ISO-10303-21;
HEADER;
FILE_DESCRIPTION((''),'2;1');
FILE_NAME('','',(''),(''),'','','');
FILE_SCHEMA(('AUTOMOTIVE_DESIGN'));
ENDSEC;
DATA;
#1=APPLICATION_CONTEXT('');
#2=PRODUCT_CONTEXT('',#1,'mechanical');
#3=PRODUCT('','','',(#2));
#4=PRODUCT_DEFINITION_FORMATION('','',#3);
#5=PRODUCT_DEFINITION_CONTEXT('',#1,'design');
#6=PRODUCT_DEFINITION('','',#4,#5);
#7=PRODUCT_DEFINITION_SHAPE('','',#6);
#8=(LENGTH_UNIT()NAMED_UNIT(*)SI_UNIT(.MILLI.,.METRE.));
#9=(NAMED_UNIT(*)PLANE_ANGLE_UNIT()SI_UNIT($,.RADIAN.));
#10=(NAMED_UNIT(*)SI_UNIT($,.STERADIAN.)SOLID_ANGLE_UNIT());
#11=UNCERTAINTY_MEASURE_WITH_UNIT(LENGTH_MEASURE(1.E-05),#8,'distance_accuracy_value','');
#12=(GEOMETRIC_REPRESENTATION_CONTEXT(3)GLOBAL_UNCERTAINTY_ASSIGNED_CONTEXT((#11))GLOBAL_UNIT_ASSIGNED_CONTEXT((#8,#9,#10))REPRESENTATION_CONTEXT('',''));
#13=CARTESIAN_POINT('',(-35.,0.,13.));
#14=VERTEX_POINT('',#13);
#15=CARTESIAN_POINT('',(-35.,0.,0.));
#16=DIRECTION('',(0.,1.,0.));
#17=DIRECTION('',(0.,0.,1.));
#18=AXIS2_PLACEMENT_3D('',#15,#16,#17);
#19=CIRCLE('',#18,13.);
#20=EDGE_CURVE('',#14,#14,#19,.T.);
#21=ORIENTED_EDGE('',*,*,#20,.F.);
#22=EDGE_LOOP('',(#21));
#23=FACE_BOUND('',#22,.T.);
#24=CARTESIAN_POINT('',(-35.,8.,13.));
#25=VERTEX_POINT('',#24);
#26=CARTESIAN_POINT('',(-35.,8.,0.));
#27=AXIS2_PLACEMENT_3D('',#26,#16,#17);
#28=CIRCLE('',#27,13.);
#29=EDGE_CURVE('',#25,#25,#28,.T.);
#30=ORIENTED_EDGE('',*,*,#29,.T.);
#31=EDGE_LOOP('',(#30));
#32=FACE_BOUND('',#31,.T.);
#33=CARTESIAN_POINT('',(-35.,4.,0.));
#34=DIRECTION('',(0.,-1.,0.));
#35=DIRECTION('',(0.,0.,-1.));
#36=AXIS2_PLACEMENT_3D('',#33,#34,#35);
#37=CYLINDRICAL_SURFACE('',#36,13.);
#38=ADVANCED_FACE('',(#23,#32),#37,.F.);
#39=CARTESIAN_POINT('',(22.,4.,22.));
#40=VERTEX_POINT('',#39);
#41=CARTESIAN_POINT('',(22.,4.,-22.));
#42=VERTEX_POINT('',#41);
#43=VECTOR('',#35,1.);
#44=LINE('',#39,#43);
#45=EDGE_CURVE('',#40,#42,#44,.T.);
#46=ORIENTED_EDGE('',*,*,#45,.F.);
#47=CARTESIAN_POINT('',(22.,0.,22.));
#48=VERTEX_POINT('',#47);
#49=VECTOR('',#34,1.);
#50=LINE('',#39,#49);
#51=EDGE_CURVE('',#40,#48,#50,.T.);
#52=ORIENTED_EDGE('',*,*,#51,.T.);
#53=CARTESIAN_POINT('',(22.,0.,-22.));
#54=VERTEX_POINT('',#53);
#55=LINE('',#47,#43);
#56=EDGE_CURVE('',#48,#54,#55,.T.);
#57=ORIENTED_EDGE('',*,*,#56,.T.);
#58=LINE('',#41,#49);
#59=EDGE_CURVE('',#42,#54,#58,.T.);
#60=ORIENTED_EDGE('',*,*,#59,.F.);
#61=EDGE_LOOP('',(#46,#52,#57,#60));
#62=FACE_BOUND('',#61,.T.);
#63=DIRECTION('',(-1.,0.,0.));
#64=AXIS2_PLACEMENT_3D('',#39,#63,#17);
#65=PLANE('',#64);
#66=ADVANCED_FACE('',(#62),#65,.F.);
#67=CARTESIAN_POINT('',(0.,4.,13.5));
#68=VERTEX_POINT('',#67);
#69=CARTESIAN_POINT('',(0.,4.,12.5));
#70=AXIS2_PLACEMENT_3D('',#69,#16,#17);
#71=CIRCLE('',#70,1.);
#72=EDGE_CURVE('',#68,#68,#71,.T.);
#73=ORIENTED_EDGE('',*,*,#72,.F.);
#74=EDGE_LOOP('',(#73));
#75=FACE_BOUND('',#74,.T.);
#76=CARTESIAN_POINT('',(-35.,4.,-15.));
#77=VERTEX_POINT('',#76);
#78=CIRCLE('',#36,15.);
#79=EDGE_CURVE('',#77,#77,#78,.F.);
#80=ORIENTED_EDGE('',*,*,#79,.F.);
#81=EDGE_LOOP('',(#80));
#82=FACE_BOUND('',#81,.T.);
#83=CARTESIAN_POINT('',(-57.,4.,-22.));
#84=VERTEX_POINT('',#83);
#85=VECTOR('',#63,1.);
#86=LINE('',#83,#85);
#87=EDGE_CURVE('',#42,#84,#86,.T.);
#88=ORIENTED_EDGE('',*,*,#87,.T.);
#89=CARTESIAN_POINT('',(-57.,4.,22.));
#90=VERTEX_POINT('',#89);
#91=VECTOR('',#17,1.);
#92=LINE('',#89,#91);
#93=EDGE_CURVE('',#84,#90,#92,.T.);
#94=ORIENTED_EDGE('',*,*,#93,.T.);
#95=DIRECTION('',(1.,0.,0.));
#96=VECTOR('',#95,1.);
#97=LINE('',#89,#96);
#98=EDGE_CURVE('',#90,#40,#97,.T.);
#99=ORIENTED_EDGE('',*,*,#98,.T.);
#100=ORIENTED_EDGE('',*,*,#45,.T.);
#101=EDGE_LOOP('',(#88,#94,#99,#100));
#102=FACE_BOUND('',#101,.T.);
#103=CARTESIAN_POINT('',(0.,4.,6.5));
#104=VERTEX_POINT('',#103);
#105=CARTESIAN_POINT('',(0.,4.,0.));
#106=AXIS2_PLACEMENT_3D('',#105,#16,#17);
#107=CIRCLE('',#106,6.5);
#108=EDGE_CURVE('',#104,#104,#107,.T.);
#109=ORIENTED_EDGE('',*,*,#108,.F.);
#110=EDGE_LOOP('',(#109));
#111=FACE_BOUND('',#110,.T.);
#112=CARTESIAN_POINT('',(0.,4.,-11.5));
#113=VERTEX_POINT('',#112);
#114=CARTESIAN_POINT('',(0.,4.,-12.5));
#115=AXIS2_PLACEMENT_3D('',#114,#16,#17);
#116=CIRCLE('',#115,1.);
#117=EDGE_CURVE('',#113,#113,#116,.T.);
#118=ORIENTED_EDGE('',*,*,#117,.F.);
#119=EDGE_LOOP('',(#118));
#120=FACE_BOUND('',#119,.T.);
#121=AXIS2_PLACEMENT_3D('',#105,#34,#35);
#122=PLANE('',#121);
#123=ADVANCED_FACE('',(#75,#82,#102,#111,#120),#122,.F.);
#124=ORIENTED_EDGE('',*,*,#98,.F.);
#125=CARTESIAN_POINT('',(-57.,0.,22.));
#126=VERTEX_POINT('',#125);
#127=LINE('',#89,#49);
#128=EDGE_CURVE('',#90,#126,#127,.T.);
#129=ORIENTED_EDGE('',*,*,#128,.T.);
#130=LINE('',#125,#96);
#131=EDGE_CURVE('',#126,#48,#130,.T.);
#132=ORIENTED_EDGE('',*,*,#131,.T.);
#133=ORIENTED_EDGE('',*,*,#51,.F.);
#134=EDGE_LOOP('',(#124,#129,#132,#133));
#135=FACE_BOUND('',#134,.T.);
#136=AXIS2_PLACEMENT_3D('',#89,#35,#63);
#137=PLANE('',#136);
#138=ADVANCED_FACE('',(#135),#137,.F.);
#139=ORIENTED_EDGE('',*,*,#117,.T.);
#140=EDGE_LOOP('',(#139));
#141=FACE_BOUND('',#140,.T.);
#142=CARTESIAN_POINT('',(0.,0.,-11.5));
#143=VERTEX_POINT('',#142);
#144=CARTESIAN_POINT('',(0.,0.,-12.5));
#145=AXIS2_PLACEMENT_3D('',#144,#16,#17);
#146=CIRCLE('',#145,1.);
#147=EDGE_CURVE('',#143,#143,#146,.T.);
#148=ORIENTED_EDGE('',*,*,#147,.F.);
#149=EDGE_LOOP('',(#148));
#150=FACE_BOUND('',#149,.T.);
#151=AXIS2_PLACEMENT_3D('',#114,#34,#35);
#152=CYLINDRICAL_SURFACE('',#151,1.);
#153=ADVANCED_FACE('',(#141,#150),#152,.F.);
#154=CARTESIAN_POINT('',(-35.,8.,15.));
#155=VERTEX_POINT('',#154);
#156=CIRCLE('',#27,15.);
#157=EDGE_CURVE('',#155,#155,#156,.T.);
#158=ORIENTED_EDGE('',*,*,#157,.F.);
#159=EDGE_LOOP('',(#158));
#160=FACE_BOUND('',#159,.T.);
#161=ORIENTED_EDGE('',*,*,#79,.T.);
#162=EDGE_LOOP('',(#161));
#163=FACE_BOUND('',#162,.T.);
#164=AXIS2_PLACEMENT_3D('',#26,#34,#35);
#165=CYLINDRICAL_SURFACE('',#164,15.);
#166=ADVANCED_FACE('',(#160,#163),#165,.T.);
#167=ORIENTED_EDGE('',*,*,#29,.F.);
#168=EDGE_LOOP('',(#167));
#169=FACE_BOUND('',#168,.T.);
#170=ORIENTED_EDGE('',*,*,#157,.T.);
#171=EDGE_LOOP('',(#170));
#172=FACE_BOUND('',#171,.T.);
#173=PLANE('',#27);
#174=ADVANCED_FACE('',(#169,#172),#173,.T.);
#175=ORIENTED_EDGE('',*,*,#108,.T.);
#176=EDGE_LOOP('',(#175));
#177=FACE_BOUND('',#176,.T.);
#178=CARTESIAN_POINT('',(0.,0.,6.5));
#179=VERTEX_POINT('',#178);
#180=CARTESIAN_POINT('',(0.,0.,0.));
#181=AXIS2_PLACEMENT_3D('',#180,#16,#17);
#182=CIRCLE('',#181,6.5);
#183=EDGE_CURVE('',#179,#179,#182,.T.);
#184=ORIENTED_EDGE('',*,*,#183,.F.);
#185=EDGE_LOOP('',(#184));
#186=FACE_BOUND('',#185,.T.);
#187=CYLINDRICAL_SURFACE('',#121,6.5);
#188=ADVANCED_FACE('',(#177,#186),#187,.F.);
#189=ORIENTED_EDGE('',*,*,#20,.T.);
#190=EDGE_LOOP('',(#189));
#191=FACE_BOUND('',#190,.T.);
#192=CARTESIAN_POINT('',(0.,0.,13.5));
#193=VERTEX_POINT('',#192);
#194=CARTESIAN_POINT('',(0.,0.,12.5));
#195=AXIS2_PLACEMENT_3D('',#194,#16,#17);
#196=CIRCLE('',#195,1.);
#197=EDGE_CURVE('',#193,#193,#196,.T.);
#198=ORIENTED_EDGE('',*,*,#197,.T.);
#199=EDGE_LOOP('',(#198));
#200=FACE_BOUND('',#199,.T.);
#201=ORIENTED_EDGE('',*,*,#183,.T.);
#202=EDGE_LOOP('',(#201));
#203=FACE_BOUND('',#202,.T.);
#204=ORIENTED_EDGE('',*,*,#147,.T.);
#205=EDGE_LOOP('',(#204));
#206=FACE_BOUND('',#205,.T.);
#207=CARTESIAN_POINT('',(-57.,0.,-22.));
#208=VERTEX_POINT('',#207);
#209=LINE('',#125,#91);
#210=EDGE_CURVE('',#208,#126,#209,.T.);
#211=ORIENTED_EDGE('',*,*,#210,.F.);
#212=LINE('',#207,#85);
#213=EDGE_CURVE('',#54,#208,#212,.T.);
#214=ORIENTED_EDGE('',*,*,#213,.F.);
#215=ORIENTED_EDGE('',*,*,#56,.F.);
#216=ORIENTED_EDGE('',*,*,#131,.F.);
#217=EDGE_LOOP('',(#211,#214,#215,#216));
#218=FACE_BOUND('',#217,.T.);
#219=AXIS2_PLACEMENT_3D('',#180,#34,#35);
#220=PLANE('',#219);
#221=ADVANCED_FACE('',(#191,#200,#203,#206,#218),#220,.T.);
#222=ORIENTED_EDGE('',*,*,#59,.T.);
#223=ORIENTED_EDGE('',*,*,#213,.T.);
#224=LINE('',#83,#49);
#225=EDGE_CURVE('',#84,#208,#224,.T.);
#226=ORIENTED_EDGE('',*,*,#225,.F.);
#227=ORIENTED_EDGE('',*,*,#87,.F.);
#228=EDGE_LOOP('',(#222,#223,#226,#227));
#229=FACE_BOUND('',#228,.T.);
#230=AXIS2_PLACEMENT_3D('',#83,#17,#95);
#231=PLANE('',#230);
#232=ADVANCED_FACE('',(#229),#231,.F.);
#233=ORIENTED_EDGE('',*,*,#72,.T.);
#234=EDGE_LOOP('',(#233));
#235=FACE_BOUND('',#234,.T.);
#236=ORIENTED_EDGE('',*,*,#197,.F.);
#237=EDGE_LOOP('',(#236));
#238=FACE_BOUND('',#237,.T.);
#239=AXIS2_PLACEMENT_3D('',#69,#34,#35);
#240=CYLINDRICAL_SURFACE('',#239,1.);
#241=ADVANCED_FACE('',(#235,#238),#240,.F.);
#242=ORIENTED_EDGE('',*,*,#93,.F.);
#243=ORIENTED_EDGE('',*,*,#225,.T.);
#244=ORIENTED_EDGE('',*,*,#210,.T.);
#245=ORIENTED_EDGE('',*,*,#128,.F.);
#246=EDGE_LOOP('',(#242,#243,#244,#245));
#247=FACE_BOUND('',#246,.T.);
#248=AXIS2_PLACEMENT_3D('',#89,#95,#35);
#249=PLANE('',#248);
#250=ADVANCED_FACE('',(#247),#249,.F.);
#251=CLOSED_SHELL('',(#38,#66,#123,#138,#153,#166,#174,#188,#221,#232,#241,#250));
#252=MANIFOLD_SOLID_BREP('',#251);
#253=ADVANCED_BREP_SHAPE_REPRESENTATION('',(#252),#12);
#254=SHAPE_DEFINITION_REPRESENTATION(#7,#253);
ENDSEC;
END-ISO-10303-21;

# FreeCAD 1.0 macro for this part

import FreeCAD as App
import Part
import Sketcher
Q = App.Units.Quantity

doc = App.newDocument("Part")
body = doc.addObject("PartDesign::Body", "Body")

# Sketch on XZ plane
sketch1 = body.newObject("Sketcher::SketchObject", "Sketch")
sketch1.AttachmentSupport = (doc.getObject("XZ_Plane"), [""])
sketch1.MapMode = "FlatFace"
sketch1.addGeometry([
    Part.LineSegment(App.Vector(-57, -22, 0), App.Vector(-57, 22, 0)),  # 0
    Part.LineSegment(App.Vector(-57, 22, 0), App.Vector(22, 22, 0)),  # 1
    Part.LineSegment(App.Vector(22, 22, 0), App.Vector(22, -22, 0)),  # 2
    Part.LineSegment(App.Vector(22, -22, 0), App.Vector(-57, -22, 0)),  # 3
    Part.Circle(App.Vector(0, 12.5, 0), App.Vector(0, 0, 1), 1),  # 4
    Part.Circle(App.Vector(-35, 0, 0), App.Vector(0, 0, 1), 13),  # 5
    Part.Circle(App.Vector(0, 0, 0), App.Vector(0, 0, 1), 6.5),  # 6
    Part.Circle(App.Vector(0, -12.5, 0), App.Vector(0, 0, 1), 1),  # 7
], False)
sketch1.addConstraint([
    Sketcher.Constraint("Coincident", 0, 2, 1, 1),
    Sketcher.Constraint("Coincident", 1, 2, 2, 1),
    Sketcher.Constraint("Coincident", 2, 2, 3, 1),
    Sketcher.Constraint("Coincident", 3, 2, 0, 1),
    Sketcher.Constraint("Vertical", 0),
    Sketcher.Constraint("Horizontal", 1),
    Sketcher.Constraint("Vertical", 2),
    Sketcher.Constraint("Horizontal", 3),
    Sketcher.Constraint("Coincident", 6, 3, -1, 1),
    Sketcher.Constraint("Equal", 4, 7),
    Sketcher.Constraint("Symmetric", 4, 3, 7, 3, -1, 1),
    Sketcher.Constraint("PointOnObject", 4, 3, -2),
    Sketcher.Constraint("PointOnObject", 5, 3, -1),
    Sketcher.Constraint("Diameter", 4, Q("2 mm")),
    Sketcher.Constraint("Diameter", 5, Q("26 mm")),
    Sketcher.Constraint("Diameter", 6, Q("13 mm")),
    Sketcher.Constraint("DistanceX", 1, 1, 1, 2, Q("79 mm")),
    Sketcher.Constraint("DistanceY", 0, 1, 0, 2, Q("44 mm")),
    Sketcher.Constraint("DistanceX", 5, 3, -1, 1, Q("35 mm")),
    Sketcher.Constraint("DistanceX", 0, 2, -1, 1, Q("57 mm")),
    Sketcher.Constraint("DistanceY", -1, 1, 0, 2, Q("22 mm")),
    Sketcher.Constraint("DistanceY", 7, 3, 4, 3, Q("25 mm")),
])
pad1 = body.newObject("PartDesign::Pad", "Pad")
pad1.Profile = sketch1
pad1.Length = 4
pad1.Reversed = True

# Sketch on XZ plane
sketch2 = body.newObject("Sketcher::SketchObject", "Sketch001")
sketch2.AttachmentSupport = (doc.getObject("XZ_Plane"), [""])
sketch2.MapMode = "FlatFace"
sketch2.AttachmentOffset = App.Placement(App.Vector(0, 0, -4), App.Rotation())
sketch2.addGeometry([
    Part.Circle(App.Vector(-35, 0, 0), App.Vector(0, 0, 1), 15),
    Part.Circle(App.Vector(-35, 0, 0), App.Vector(0, 0, 1), 13),
], False)
sketch2.addConstraint([
    Sketcher.Constraint("Coincident", 1, 3, 0, 3),
    Sketcher.Constraint("PointOnObject", 0, 3, -1),
    Sketcher.Constraint("Diameter", 0, Q("30 mm")),
    Sketcher.Constraint("Diameter", 1, Q("26 mm")),
    Sketcher.Constraint("DistanceX", 0, 3, -1, 1, Q("35 mm")),
])
pad2 = body.newObject("PartDesign::Pad", "Pad001")
pad2.Profile = sketch2
pad2.Length = 4
pad2.Reversed = True

doc.recompute()
